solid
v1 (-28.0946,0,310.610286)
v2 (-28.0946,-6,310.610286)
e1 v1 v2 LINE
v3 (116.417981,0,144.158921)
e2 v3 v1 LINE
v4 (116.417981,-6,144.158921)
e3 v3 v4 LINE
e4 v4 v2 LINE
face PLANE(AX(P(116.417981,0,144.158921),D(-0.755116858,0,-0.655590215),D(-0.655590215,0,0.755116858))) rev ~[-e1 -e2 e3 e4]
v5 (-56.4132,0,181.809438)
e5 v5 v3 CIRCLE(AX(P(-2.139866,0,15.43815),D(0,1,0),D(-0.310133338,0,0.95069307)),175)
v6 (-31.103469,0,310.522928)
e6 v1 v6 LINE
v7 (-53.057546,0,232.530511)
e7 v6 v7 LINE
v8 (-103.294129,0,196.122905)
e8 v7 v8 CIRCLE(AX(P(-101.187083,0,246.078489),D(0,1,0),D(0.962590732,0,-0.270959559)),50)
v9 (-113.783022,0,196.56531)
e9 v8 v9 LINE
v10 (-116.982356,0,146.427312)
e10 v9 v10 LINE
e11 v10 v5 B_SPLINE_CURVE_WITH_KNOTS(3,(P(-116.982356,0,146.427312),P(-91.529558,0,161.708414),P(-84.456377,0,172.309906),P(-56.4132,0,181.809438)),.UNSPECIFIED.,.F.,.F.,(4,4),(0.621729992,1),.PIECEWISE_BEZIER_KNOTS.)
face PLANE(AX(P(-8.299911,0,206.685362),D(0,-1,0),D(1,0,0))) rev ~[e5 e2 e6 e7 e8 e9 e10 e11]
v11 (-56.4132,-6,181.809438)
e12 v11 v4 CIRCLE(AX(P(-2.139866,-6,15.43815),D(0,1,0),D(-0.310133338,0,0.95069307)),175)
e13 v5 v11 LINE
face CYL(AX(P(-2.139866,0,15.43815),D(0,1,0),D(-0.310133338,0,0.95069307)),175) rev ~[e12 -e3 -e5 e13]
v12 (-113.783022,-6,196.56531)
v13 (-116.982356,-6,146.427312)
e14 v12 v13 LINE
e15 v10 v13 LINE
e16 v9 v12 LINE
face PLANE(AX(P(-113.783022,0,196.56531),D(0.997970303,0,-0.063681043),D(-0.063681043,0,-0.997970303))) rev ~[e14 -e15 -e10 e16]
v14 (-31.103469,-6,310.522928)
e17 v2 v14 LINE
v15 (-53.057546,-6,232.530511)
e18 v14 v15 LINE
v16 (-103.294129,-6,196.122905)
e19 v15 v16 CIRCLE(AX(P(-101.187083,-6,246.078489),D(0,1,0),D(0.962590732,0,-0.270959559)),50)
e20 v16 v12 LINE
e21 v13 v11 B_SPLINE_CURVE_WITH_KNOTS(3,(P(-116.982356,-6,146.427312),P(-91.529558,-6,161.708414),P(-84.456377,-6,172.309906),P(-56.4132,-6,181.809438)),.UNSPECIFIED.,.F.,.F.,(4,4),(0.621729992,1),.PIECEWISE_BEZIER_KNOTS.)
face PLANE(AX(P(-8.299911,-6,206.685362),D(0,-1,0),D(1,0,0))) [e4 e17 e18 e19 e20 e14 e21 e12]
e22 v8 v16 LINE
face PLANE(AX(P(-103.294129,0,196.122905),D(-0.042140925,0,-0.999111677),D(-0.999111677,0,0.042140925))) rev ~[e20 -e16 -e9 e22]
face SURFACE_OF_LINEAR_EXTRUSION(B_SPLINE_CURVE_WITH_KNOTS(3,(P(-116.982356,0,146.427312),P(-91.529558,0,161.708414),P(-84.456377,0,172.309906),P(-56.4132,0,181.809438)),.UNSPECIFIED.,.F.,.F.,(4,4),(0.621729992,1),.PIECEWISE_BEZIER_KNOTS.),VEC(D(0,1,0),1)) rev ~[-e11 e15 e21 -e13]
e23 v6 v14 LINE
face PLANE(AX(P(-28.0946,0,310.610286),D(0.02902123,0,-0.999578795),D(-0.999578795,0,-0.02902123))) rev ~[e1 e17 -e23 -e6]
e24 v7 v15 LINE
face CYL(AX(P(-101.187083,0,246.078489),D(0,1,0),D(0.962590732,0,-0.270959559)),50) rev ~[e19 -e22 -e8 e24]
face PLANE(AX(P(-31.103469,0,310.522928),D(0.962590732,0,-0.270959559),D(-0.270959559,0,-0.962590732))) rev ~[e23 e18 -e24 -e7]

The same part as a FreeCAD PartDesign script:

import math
import FreeCAD as App
import Part
import Sketcher
from FreeCAD import Vector
Q = App.Units.Quantity

doc = App.newDocument("Part")
body = doc.addObject("PartDesign::Body", "Body")

sketch1 = doc.addObject("Sketcher::SketchObject", "Sketch")
body.addObject(sketch1)
sketch1.AttachmentSupport = (doc.XZ_Plane, [""])
sketch1.MapMode = "FlatFace"
sketch1.addGeometry(Part.LineSegment(Vector(-113.783022, 196.56531, 0), Vector(-116.982356, 146.427312, 0)), False)
sketch1.addGeometry(Part.BSplineCurve([Vector(-116.982356, 146.427312, 0), Vector(-91.529558, 161.708414, 0), Vector(-84.456377, 172.309906, 0), Vector(-56.4132, 181.809438, 0)], [4, 4], [0.621729992, 1], False, 3, [1, 1, 1, 1], False), False)
sketch1.addGeometry(Part.ArcOfCircle(Part.Circle(Vector(-2.139866, 15.43815, 0), Vector(0, 0, 1), 175), math.radians(47.353479), math.radians(108.067266)), False)
sketch1.addGeometry(Part.LineSegment(Vector(116.417981, 144.158921, 0), Vector(-28.0946, 310.610286, 0)), False)
sketch1.addGeometry(Part.LineSegment(Vector(-28.0946, 310.610286, 0), Vector(-31.103469, 310.522928, 0)), False)
sketch1.addGeometry(Part.LineSegment(Vector(-31.103469, 310.522928, 0), Vector(-53.057546, 232.530511, 0)), False)
sketch1.addGeometry(Part.ArcOfCircle(Part.Circle(Vector(-101.187083, 246.078489, 0), Vector(0, 0, 1), 50), math.radians(-92.415212), math.radians(-15.721374)), False)
sketch1.addGeometry(Part.LineSegment(Vector(-103.294129, 196.122905, 0), Vector(-113.783022, 196.56531, 0)), False)
sketch1.addConstraint(Sketcher.Constraint("Block", 1))
sketch1.addConstraint(Sketcher.Constraint("Coincident", 0, 2, 1, 1))
sketch1.addConstraint(Sketcher.Constraint("Coincident", 1, 2, 2, 2))
sketch1.addConstraint(Sketcher.Constraint("Coincident", 2, 1, 3, 1))
sketch1.addConstraint(Sketcher.Constraint("Coincident", 3, 2, 4, 1))
sketch1.addConstraint(Sketcher.Constraint("Coincident", 4, 2, 5, 1))
sketch1.addConstraint(Sketcher.Constraint("Tangent", 5, 2, 6, 2))
sketch1.addConstraint(Sketcher.Constraint("Tangent", 6, 1, 7, 1))
sketch1.addConstraint(Sketcher.Constraint("Coincident", 7, 2, 0, 1))
sketch1.addConstraint(Sketcher.Constraint("Radius", 2, Q("175 mm")))
sketch1.addConstraint(Sketcher.Constraint("Radius", 6, Q("50 mm")))
sketch1.addConstraint(Sketcher.Constraint("DistanceX", 3, 2, -1, 1, Q("28.0946 mm")))
sketch1.addConstraint(Sketcher.Constraint("DistanceY", 0, 2, 5, 2, Q("86.103199 mm")))
sketch1.addConstraint(Sketcher.Constraint("DistanceY", 7, 2, 5, 2, Q("35.965201 mm")))
sketch1.addConstraint(Sketcher.Constraint("Distance", 0, Q("50.23997 mm")))
sketch1.addConstraint(Sketcher.Constraint("Distance", 7, Q("10.498219 mm")))
sketch1.addConstraint(Sketcher.Constraint("DistanceY", -1, 1, 2, 3, Q("15.43815 mm")))
sketch1.addConstraint(Sketcher.Constraint("DistanceY", -1, 1, 6, 3, Q("246.078489 mm")))
sketch1.addConstraint(Sketcher.Constraint("DistanceX", -1, 1, 2, 1, Q("116.417981 mm")))
sketch1.addConstraint(Sketcher.Constraint("DistanceX", 4, 2, -1, 1, Q("31.103469 mm")))
sketch1.addConstraint(Sketcher.Constraint("DistanceY", 6, 1, 3, 2, Q("114.48738 mm")))
pad1 = doc.addObject("PartDesign::Pad", "Pad")
body.addObject(pad1)
pad1.Profile = sketch1
pad1.Length = 6

doc.recompute()
